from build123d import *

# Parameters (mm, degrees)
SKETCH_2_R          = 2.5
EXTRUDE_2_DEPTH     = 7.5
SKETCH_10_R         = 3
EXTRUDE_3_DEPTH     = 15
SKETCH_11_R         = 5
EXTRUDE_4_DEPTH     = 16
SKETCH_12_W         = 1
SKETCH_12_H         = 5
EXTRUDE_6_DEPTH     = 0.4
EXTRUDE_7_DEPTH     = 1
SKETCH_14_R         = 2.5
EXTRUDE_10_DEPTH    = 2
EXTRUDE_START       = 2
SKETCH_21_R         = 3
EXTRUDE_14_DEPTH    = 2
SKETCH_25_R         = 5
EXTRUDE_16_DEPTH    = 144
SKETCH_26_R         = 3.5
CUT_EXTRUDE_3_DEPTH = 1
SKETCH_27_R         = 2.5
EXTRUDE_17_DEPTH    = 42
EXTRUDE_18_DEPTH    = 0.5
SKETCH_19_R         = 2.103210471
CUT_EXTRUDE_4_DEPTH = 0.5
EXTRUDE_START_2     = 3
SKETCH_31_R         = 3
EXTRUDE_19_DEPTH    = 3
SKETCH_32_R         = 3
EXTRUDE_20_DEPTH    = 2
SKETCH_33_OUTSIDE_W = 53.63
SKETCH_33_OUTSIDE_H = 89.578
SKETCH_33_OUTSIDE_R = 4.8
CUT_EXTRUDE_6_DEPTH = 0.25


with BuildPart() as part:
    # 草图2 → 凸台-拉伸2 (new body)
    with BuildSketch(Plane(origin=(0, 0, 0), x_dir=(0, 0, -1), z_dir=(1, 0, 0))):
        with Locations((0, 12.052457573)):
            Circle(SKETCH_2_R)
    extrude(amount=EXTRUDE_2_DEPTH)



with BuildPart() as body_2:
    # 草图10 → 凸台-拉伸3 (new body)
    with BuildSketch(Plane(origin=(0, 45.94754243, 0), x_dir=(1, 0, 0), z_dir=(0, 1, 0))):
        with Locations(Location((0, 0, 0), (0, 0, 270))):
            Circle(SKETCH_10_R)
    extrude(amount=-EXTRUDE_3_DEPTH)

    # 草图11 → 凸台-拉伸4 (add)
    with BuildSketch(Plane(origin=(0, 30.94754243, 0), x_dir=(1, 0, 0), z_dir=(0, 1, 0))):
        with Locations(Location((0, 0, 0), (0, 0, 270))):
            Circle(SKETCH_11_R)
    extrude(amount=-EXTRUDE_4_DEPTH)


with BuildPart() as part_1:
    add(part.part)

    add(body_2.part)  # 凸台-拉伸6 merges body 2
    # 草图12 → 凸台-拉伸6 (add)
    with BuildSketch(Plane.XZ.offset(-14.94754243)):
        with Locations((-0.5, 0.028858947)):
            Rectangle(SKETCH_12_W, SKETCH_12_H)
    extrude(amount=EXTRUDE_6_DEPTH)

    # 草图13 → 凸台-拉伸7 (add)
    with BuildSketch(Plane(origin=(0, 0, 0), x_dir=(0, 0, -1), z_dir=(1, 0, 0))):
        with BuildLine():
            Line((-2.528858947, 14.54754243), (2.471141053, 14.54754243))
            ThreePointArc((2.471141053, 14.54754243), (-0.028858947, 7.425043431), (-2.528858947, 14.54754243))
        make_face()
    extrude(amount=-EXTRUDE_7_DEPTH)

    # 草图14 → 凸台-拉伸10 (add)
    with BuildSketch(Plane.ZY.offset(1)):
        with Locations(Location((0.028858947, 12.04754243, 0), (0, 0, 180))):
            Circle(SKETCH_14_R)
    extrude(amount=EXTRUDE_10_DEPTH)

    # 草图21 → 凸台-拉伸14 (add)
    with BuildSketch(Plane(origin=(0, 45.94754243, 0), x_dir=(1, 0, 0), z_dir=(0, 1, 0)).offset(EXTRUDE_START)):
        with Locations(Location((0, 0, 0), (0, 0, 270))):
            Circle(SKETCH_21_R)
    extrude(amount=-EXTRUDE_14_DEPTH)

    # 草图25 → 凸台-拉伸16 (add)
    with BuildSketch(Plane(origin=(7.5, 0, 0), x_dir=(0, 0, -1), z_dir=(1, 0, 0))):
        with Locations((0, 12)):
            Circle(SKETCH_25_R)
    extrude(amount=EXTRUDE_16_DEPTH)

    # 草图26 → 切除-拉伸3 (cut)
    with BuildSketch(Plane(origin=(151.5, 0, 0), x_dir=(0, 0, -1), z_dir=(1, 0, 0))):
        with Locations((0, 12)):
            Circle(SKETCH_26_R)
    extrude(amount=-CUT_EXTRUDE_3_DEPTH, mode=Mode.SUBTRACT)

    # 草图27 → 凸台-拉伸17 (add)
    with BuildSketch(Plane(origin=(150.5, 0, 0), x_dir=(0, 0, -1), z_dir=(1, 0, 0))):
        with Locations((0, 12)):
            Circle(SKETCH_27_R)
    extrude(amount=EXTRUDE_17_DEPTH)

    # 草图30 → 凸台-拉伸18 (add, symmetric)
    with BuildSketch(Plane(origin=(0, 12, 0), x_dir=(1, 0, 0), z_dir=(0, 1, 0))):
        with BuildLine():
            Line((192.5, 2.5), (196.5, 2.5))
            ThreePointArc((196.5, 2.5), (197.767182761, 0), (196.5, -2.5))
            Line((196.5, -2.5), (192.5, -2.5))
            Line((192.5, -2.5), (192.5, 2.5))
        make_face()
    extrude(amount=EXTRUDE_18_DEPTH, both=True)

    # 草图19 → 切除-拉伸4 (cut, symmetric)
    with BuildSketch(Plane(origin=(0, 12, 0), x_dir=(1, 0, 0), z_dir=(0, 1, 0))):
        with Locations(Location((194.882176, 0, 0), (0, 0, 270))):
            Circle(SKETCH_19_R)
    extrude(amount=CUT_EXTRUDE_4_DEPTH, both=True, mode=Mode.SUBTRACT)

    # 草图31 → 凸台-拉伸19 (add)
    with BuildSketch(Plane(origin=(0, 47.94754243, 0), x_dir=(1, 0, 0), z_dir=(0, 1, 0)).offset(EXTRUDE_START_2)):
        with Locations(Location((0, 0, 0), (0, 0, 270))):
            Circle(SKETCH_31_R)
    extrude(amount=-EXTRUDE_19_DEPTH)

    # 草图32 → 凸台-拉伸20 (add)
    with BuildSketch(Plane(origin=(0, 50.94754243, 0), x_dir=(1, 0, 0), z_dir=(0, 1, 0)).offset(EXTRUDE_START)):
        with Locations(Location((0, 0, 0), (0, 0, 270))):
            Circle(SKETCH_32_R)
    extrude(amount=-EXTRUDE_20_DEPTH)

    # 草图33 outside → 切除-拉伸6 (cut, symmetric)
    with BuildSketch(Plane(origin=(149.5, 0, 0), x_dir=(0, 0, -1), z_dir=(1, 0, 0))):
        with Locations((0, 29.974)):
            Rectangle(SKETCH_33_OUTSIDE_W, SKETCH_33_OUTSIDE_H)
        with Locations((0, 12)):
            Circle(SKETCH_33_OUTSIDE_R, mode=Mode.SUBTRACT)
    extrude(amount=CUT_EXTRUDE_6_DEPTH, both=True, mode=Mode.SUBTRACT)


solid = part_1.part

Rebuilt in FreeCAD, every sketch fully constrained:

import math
import FreeCAD as App
import Part
import Sketcher

V = App.Vector


def add_polygon(sketch, points):
    """Adds a closed chain of lines whose ends are joined by coincident constraints."""
    first, n = sketch.GeometryCount, len(points)
    for a, b in zip(points, points[1:] + points[:1]):
        sketch.addGeometry(Part.LineSegment(App.Vector(*a, 0), App.Vector(*b, 0)), False)
    for i in range(n):
        sketch.addConstraint(Sketcher.Constraint("Coincident", first + i, 2, first + (i + 1) % n, 1))

doc = App.newDocument("Part")
body = doc.addObject("PartDesign::Body", "Body")

# Sketch on YZ plane
sketch1 = body.newObject("Sketcher::SketchObject", "Sketch")
sketch1.AttachmentSupport = (doc.getObject("YZ_Plane"), [""])
sketch1.MapMode = "FlatFace"
sketch1.addGeometry(Part.Circle(V(12.1, 0, 0), V(0, 0, 1), 2.5), False)
sketch1.addConstraint([
    Sketcher.Constraint("PointOnObject", 0, 3, -1),
    Sketcher.Constraint("Diameter", 0, 5.0),
    Sketcher.Constraint("DistanceX", -1, 1, 0, 3, 12.052458),
])
pad1 = body.newObject("PartDesign::Pad", "Pad")
pad1.Profile = sketch1
pad1.Length = 7.5
body2 = doc.addObject("PartDesign::Body", "Body001")

# Sketch on XZ plane
sketch2 = body2.newObject("Sketcher::SketchObject", "Sketch001")
sketch2.AttachmentSupport = (doc.getObject("XZ_Plane001"), [""])
sketch2.MapMode = "FlatFace"
sketch2.AttachmentOffset = App.Placement(V(0, 0, -45.947542), App.Rotation())
sketch2.addGeometry(Part.Circle(V(0, 0, 0), V(0, 0, 1), 3), False)
sketch2.addConstraint([
    Sketcher.Constraint("Coincident", 0, 3, -1, 1),
    Sketcher.Constraint("Diameter", 0, 6.0),
])
pad2 = body2.newObject("PartDesign::Pad", "Pad001")
pad2.Profile = sketch2
pad2.Length = 15

# Sketch on XZ plane
sketch3 = body2.newObject("Sketcher::SketchObject", "Sketch002")
sketch3.AttachmentSupport = (doc.getObject("XZ_Plane001"), [""])
sketch3.MapMode = "FlatFace"
sketch3.AttachmentOffset = App.Placement(V(0, 0, -30.947542), App.Rotation())
sketch3.addGeometry(Part.Circle(V(0, 0, 0), V(0, 0, 1), 5), False)
sketch3.addConstraint([
    Sketcher.Constraint("Coincident", 0, 3, -1, 1),
    Sketcher.Constraint("Diameter", 0, 10.0),
])
pad3 = body2.newObject("PartDesign::Pad", "Pad002")
pad3.Profile = sketch3
pad3.Length = 16
body.AllowCompound = True
doc.recompute()

boolean = body.newObject("PartDesign::Boolean", "Boolean")
boolean.Type = "Fuse"
boolean.addObjects([body2])

# Sketch on XZ plane
sketch4 = body.newObject("Sketcher::SketchObject", "Sketch003")
sketch4.AttachmentSupport = (doc.getObject("XZ_Plane"), [""])
sketch4.MapMode = "FlatFace"
sketch4.AttachmentOffset = App.Placement(V(0, 0, -14.947542), App.Rotation())
add_polygon(sketch4, [(-1, 2.5), (-1, -2.5), (0, -2.5), (0, 2.5)])  # lines 0-3
sketch4.addConstraint([
    Sketcher.Constraint("Vertical", 0),
    Sketcher.Constraint("Horizontal", 1),
    Sketcher.Constraint("Vertical", 2),
    Sketcher.Constraint("Horizontal", 3),
    Sketcher.Constraint("PointOnObject", 1, 2, -2),
    Sketcher.Constraint("DistanceX", 1, 1, 1, 2, 1.0),
    Sketcher.Constraint("DistanceY", 0, 2, 0, 1, 5.0),
    Sketcher.Constraint("DistanceY", 0, 2, -1, 1, 2.471141),
])
pad4 = body.newObject("PartDesign::Pad", "Pad003")
pad4.Profile = sketch4
pad4.Length = 0.4

# Sketch on YZ plane
sketch5 = body.newObject("Sketcher::SketchObject", "Sketch004")
sketch5.AttachmentSupport = (doc.getObject("YZ_Plane"), [""])
sketch5.MapMode = "FlatFace"
sketch5.addGeometry([
    Part.LineSegment(V(14.5, -2.5, 0), V(14.5, 2.5, 0)),
    Part.ArcOfCircle(Part.Circle(V(11.4, 0, 0), V(0, 0, 1), 4), math.radians(39), math.radians(321)),
], False)
sketch5.addConstraint([
    Sketcher.Constraint("Coincident", 0, 1, 1, 2),
    Sketcher.Constraint("Coincident", 1, 1, 0, 2),
    Sketcher.Constraint("Vertical", 0),
    Sketcher.Constraint("Radius", 1, 4.0),
    Sketcher.Constraint("DistanceY", 0, 1, 0, 2, 5.0),
    Sketcher.Constraint("DistanceY", -1, 1, 1, 3, 0.028859),
    Sketcher.Constraint("DistanceX", -1, 1, 1, 3, 11.425043),
])
pad5 = body.newObject("PartDesign::Pad", "Pad004")
pad5.Profile = sketch5
pad5.Length = 1
pad5.Reversed = True

# Sketch on YZ plane
sketch6 = body.newObject("Sketcher::SketchObject", "Sketch005")
sketch6.AttachmentSupport = (doc.getObject("YZ_Plane"), [""])
sketch6.MapMode = "FlatFace"
sketch6.AttachmentOffset = App.Placement(V(0, 0, -1), App.Rotation())
sketch6.addGeometry(Part.Circle(V(12, 0, 0), V(0, 0, 1), 2.5), False)
sketch6.addConstraint([
    Sketcher.Constraint("Diameter", 0, 5.0),
    Sketcher.Constraint("DistanceY", -1, 1, 0, 3, 0.028859),
    Sketcher.Constraint("DistanceX", -1, 1, 0, 3, 12.047542),
])
pad6 = body.newObject("PartDesign::Pad", "Pad005")
pad6.Profile = sketch6
pad6.Length = 2
pad6.Reversed = True

# Sketch on XZ plane
sketch7 = body.newObject("Sketcher::SketchObject", "Sketch006")
sketch7.AttachmentSupport = (doc.getObject("XZ_Plane"), [""])
sketch7.MapMode = "FlatFace"
sketch7.AttachmentOffset = App.Placement(V(0, 0, -47.947542), App.Rotation())
sketch7.addGeometry(Part.Circle(V(0, 0, 0), V(0, 0, 1), 3), False)
sketch7.addConstraint([
    Sketcher.Constraint("Coincident", 0, 3, -1, 1),
    Sketcher.Constraint("Diameter", 0, 6.0),
])
pad7 = body.newObject("PartDesign::Pad", "Pad006")
pad7.Profile = sketch7
pad7.Length = 2

# Sketch on YZ plane
sketch8 = body.newObject("Sketcher::SketchObject", "Sketch007")
sketch8.AttachmentSupport = (doc.getObject("YZ_Plane"), [""])
sketch8.MapMode = "FlatFace"
sketch8.AttachmentOffset = App.Placement(V(0, 0, 7.5), App.Rotation())
sketch8.addGeometry(Part.Circle(V(12, 0, 0), V(0, 0, 1), 5), False)
sketch8.addConstraint([
    Sketcher.Constraint("PointOnObject", 0, 3, -1),
    Sketcher.Constraint("Diameter", 0, 10.0),
    Sketcher.Constraint("DistanceX", -1, 1, 0, 3, 12.0),
])
pad8 = body.newObject("PartDesign::Pad", "Pad007")
pad8.Profile = sketch8
pad8.Length = 144

# Sketch on YZ plane
sketch9 = body.newObject("Sketcher::SketchObject", "Sketch008")
sketch9.AttachmentSupport = (doc.getObject("YZ_Plane"), [""])
sketch9.MapMode = "FlatFace"
sketch9.AttachmentOffset = App.Placement(V(0, 0, 151.5), App.Rotation())
sketch9.addGeometry(Part.Circle(V(12, 0, 0), V(0, 0, 1), 3.5), False)
sketch9.addConstraint([
    Sketcher.Constraint("PointOnObject", 0, 3, -1),
    Sketcher.Constraint("Diameter", 0, 7.0),
    Sketcher.Constraint("DistanceX", -1, 1, 0, 3, 12.0),
])
pocket1 = body.newObject("PartDesign::Pocket", "Pocket")
pocket1.Profile = sketch9
pocket1.Length = 1

# Sketch on YZ plane
sketch10 = body.newObject("Sketcher::SketchObject", "Sketch009")
sketch10.AttachmentSupport = (doc.getObject("YZ_Plane"), [""])
sketch10.MapMode = "FlatFace"
sketch10.AttachmentOffset = App.Placement(V(0, 0, 150.5), App.Rotation())
sketch10.addGeometry(Part.Circle(V(12, 0, 0), V(0, 0, 1), 2.5), False)
sketch10.addConstraint([
    Sketcher.Constraint("PointOnObject", 0, 3, -1),
    Sketcher.Constraint("Diameter", 0, 5.0),
    Sketcher.Constraint("DistanceX", -1, 1, 0, 3, 12.0),
])
pad9 = body.newObject("PartDesign::Pad", "Pad008")
pad9.Profile = sketch10
pad9.Length = 42

# Sketch on XZ plane
sketch11 = body.newObject("Sketcher::SketchObject", "Sketch010")
sketch11.AttachmentSupport = (doc.getObject("XZ_Plane"), [""])
sketch11.MapMode = "FlatFace"
sketch11.AttachmentOffset = App.Placement(V(0, 0, -12), App.Rotation())
sketch11.addGeometry([
    Part.LineSegment(V(196.5, -2.5, 0), V(192.5, -2.5, 0)),
    Part.LineSegment(V(192.5, -2.5, 0), V(192.5, 2.5, 0)),
    Part.LineSegment(V(192.5, 2.5, 0), V(196.5, 2.5, 0)),
    Part.ArcOfCircle(Part.Circle(V(194.7, 0, 0), V(0, 0, 1), 3.1), math.radians(-54), math.radians(54)),
], False)
sketch11.addConstraint([
    Sketcher.Constraint("Coincident", 0, 2, 1, 1),
    Sketcher.Constraint("Coincident", 1, 2, 2, 1),
    Sketcher.Constraint("Coincident", 2, 2, 3, 2),
    Sketcher.Constraint("Coincident", 3, 1, 0, 1),
    Sketcher.Constraint("Horizontal", 0),
    Sketcher.Constraint("Vertical", 1),
    Sketcher.Constraint("Horizontal", 2),
    Sketcher.Constraint("Symmetric", 2, 2, 3, 1, -1),
    Sketcher.Constraint("DistanceX", 0, 2, 0, 1, 4.0),
    Sketcher.Constraint("DistanceY", 1, 1, 1, 2, 5.0),
    Sketcher.Constraint("DistanceX", -1, 1, 0, 2, 192.5),
    Sketcher.Constraint("Radius", 3, 3.099692),
])
pad10 = body.newObject("PartDesign::Pad", "Pad009")
pad10.Profile = sketch11
pad10.Length = 1
pad10.Midplane = True

# Sketch on XZ plane
sketch12 = body.newObject("Sketcher::SketchObject", "Sketch011")
sketch12.AttachmentSupport = (doc.getObject("XZ_Plane"), [""])
sketch12.MapMode = "FlatFace"
sketch12.AttachmentOffset = App.Placement(V(0, 0, -12), App.Rotation())
sketch12.addGeometry(Part.Circle(V(194.9, 0, 0), V(0, 0, 1), 2.1), False)
sketch12.addConstraint([
    Sketcher.Constraint("PointOnObject", 0, 3, -1),
    Sketcher.Constraint("Diameter", 0, 4.206421),
    Sketcher.Constraint("DistanceX", -1, 1, 0, 3, 194.882176),
])
pocket2 = body.newObject("PartDesign::Pocket", "Pocket001")
pocket2.Profile = sketch12
pocket2.Length = 1
pocket2.Midplane = True

# Sketch on XZ plane
sketch13 = body.newObject("Sketcher::SketchObject", "Sketch012")
sketch13.AttachmentSupport = (doc.getObject("XZ_Plane"), [""])
sketch13.MapMode = "FlatFace"
sketch13.AttachmentOffset = App.Placement(V(0, 0, -50.947542), App.Rotation())
sketch13.addGeometry(Part.Circle(V(0, 0, 0), V(0, 0, 1), 3), False)
sketch13.addConstraint([
    Sketcher.Constraint("Coincident", 0, 3, -1, 1),
    Sketcher.Constraint("Diameter", 0, 6.0),
])
pad11 = body.newObject("PartDesign::Pad", "Pad010")
pad11.Profile = sketch13
pad11.Length = 3

# Sketch on XZ plane
sketch14 = body.newObject("Sketcher::SketchObject", "Sketch013")
sketch14.AttachmentSupport = (doc.getObject("XZ_Plane"), [""])
sketch14.MapMode = "FlatFace"
sketch14.AttachmentOffset = App.Placement(V(0, 0, -52.947542), App.Rotation())
sketch14.addGeometry(Part.Circle(V(0, 0, 0), V(0, 0, 1), 3), False)
sketch14.addConstraint([
    Sketcher.Constraint("Coincident", 0, 3, -1, 1),
    Sketcher.Constraint("Diameter", 0, 6.0),
])
pad12 = body.newObject("PartDesign::Pad", "Pad011")
pad12.Profile = sketch14
pad12.Length = 2

# Sketch on YZ plane
sketch15 = body.newObject("Sketcher::SketchObject", "Sketch014")
sketch15.AttachmentSupport = (doc.getObject("YZ_Plane"), [""])
sketch15.MapMode = "FlatFace"
sketch15.AttachmentOffset = App.Placement(V(0, 0, 149.5), App.Rotation())
add_polygon(sketch15, [(74.8, 26.8), (-14.8, 26.8), (-14.8, -26.8), (74.8, -26.8)])  # lines 0-3
sketch15.addGeometry(Part.Circle(V(12, 0, 0), V(0, 0, 1), 4.8), False)  # 4
sketch15.addConstraint([
    Sketcher.Constraint("Horizontal", 0),
    Sketcher.Constraint("Vertical", 1),
    Sketcher.Constraint("Horizontal", 2),
    Sketcher.Constraint("Vertical", 3),
    Sketcher.Constraint("PointOnObject", 4, 3, -1),
    Sketcher.Constraint("Diameter", 4, 9.6),
    Sketcher.Constraint("DistanceX", -1, 1, 4, 3, 12.0),
    Sketcher.Constraint("DistanceY", 1, 2, 1, 1, 53.63),
    Sketcher.Constraint("DistanceX", 0, 2, 0, 1, 89.578),
    Sketcher.Constraint("DistanceX", 0, 2, -1, 1, 14.815),
    Sketcher.Constraint("DistanceY", -1, 1, 0, 2, 26.815),
])
pocket3 = body.newObject("PartDesign::Pocket", "Pocket002")
pocket3.Profile = sketch15
pocket3.Length = 0.5
pocket3.Midplane = True

doc.recompute()
